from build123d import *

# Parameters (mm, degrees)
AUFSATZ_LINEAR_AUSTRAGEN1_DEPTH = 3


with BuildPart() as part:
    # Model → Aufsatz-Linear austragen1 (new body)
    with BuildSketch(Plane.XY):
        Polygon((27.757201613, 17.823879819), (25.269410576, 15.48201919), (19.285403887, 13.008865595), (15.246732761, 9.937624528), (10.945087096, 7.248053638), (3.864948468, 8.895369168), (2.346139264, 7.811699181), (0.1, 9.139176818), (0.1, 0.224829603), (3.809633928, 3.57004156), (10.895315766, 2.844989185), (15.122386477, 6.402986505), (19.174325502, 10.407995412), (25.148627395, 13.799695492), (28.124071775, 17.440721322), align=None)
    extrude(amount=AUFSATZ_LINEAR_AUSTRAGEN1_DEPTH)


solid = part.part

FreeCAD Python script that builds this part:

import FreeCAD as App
import Part
import Sketcher

doc = App.newDocument("Part")
params = doc.addObject("Spreadsheet::Sheet", "Params")
for row, (alias, value) in enumerate([
    ("pad1_length", "3 mm"),
], start=1):
    params.set(f"A{row}", alias)
    params.set(f"B{row}", "=" + value)
    params.setAlias(f"B{row}", alias)

body = doc.addObject("PartDesign::Body", "Body")

sketch1 = doc.addObject("Sketcher::SketchObject", "Sketch")
body.addObject(sketch1)
sketch1.AttachmentSupport = (doc.XY_Plane, [""])
sketch1.MapMode = "FlatFace"
sketch1.addGeometry(Part.LineSegment(App.Vector(27.8, 17.8, 0), App.Vector(25.3, 15.5, 0)), False)
sketch1.addGeometry(Part.LineSegment(App.Vector(25.3, 15.5, 0), App.Vector(19.3, 13, 0)), False)
sketch1.addGeometry(Part.LineSegment(App.Vector(19.3, 13, 0), App.Vector(15.2, 9.9, 0)), False)
sketch1.addGeometry(Part.LineSegment(App.Vector(15.2, 9.9, 0), App.Vector(10.9, 7.2, 0)), False)
sketch1.addGeometry(Part.LineSegment(App.Vector(10.9, 7.2, 0), App.Vector(3.9, 8.9, 0)), False)
sketch1.addGeometry(Part.LineSegment(App.Vector(3.9, 8.9, 0), App.Vector(2.3, 7.8, 0)), False)
sketch1.addGeometry(Part.LineSegment(App.Vector(2.3, 7.8, 0), App.Vector(0.1, 9.1, 0)), False)
sketch1.addGeometry(Part.LineSegment(App.Vector(0.1, 9.1, 0), App.Vector(0.1, 0.2, 0)), False)
sketch1.addGeometry(Part.LineSegment(App.Vector(0.1, 0.2, 0), App.Vector(3.8, 3.6, 0)), False)
sketch1.addGeometry(Part.LineSegment(App.Vector(3.8, 3.6, 0), App.Vector(10.9, 2.8, 0)), False)
sketch1.addGeometry(Part.LineSegment(App.Vector(10.9, 2.8, 0), App.Vector(15.1, 6.4, 0)), False)
sketch1.addGeometry(Part.LineSegment(App.Vector(15.1, 6.4, 0), App.Vector(19.2, 10.4, 0)), False)
sketch1.addGeometry(Part.LineSegment(App.Vector(19.2, 10.4, 0), App.Vector(25.1, 13.8, 0)), False)
sketch1.addGeometry(Part.LineSegment(App.Vector(25.1, 13.8, 0), App.Vector(28.1, 17.4, 0)), False)
sketch1.addGeometry(Part.LineSegment(App.Vector(28.1, 17.4, 0), App.Vector(27.8, 17.8, 0)), False)
sketch1.addConstraint(Sketcher.Constraint("Coincident", 0, 2, 1, 1))
sketch1.addConstraint(Sketcher.Constraint("Coincident", 1, 2, 2, 1))
sketch1.addConstraint(Sketcher.Constraint("Coincident", 2, 2, 3, 1))
sketch1.addConstraint(Sketcher.Constraint("Coincident", 3, 2, 4, 1))
sketch1.addConstraint(Sketcher.Constraint("Coincident", 4, 2, 5, 1))
sketch1.addConstraint(Sketcher.Constraint("Coincident", 5, 2, 6, 1))
sketch1.addConstraint(Sketcher.Constraint("Coincident", 6, 2, 7, 1))
sketch1.addConstraint(Sketcher.Constraint("Coincident", 7, 2, 8, 1))
sketch1.addConstraint(Sketcher.Constraint("Coincident", 8, 2, 9, 1))
sketch1.addConstraint(Sketcher.Constraint("Coincident", 9, 2, 10, 1))
sketch1.addConstraint(Sketcher.Constraint("Coincident", 10, 2, 11, 1))
sketch1.addConstraint(Sketcher.Constraint("Coincident", 11, 2, 12, 1))
sketch1.addConstraint(Sketcher.Constraint("Coincident", 12, 2, 13, 1))
sketch1.addConstraint(Sketcher.Constraint("Coincident", 13, 2, 14, 1))
sketch1.addConstraint(Sketcher.Constraint("Coincident", 14, 2, 0, 1))
sketch1.addConstraint(Sketcher.Constraint("Vertical", 7))
sketch1.addConstraint(Sketcher.Constraint("DistanceX", -1, 1, 6, 2, 0.1))
sketch1.addConstraint(Sketcher.Constraint("DistanceY", -1, 1, 5, 2, 7.811699))
sketch1.addConstraint(Sketcher.Constraint("DistanceX", -1, 1, 14, 2, 27.757202))
sketch1.addConstraint(Sketcher.Constraint("DistanceX", 3, 2, 10, 2, 4.177299))
sketch1.addConstraint(Sketcher.Constraint("DistanceX", 11, 2, 12, 2, 5.974302))
sketch1.addConstraint(Sketcher.Constraint("DistanceY", 11, 2, 12, 2, 3.3917))
sketch1.addConstraint(Sketcher.Constraint("Distance", 0, 3.416638))
sketch1.addConstraint(Sketcher.Constraint("Distance", 1, 6.474938))
sketch1.addConstraint(Sketcher.Constraint("Distance", 3, 5.073258))
sketch1.addConstraint(Sketcher.Constraint("Distance", 4, 7.269251))
sketch1.addConstraint(Sketcher.Constraint("Distance", 8, 4.99518))
sketch1.addConstraint(Sketcher.Constraint("Distance", 9, 7.122681))
sketch1.addConstraint(Sketcher.Constraint("Distance", 11, 5.697219))
sketch1.addConstraint(Sketcher.Constraint("DistanceY", 7, 2, 7, 1, 8.914347))
sketch1.addConstraint(Sketcher.Constraint("DistanceX", -1, 1, 0, 2, 25.269411))
sketch1.addConstraint(Sketcher.Constraint("DistanceY", -1, 1, 0, 2, 15.482019))
sketch1.addConstraint(Sketcher.Constraint("DistanceX", -1, 1, 4, 2, 3.864948))
sketch1.addConstraint(Sketcher.Constraint("DistanceY", -1, 1, 4, 2, 8.895369))
sketch1.addConstraint(Sketcher.Constraint("DistanceX", -1, 1, 5, 2, 2.346139))
sketch1.addConstraint(Sketcher.Constraint("DistanceY", -1, 1, 7, 2, 0.22483))
sketch1.addConstraint(Sketcher.Constraint("DistanceY", -1, 1, 8, 2, 3.570042))
sketch1.addConstraint(Sketcher.Constraint("DistanceY", -1, 1, 9, 2, 2.844989))
sketch1.addConstraint(Sketcher.Constraint("DistanceX", -1, 1, 13, 2, 28.124072))
sketch1.addConstraint(Sketcher.Constraint("DistanceY", -1, 1, 13, 2, 17.440721))
sketch1.addConstraint(Sketcher.Constraint("DistanceX", 2, 2, 1, 2, 4.038671))
sketch1.addConstraint(Sketcher.Constraint("DistanceY", 2, 2, 1, 2, 3.071241))
sketch1.addConstraint(Sketcher.Constraint("DistanceY", 3, 2, 2, 2, 2.689571))
sketch1.addConstraint(Sketcher.Constraint("DistanceY", 10, 2, 2, 2, 3.534638))
sketch1.addConstraint(Sketcher.Constraint("DistanceX", 11, 2, 1, 2, 0.111078))
pad1 = doc.addObject("PartDesign::Pad", "Pad")
body.addObject(pad1)
pad1.Profile = sketch1
pad1.setExpression("Length", "Params.pad1_length")

doc.recompute()
